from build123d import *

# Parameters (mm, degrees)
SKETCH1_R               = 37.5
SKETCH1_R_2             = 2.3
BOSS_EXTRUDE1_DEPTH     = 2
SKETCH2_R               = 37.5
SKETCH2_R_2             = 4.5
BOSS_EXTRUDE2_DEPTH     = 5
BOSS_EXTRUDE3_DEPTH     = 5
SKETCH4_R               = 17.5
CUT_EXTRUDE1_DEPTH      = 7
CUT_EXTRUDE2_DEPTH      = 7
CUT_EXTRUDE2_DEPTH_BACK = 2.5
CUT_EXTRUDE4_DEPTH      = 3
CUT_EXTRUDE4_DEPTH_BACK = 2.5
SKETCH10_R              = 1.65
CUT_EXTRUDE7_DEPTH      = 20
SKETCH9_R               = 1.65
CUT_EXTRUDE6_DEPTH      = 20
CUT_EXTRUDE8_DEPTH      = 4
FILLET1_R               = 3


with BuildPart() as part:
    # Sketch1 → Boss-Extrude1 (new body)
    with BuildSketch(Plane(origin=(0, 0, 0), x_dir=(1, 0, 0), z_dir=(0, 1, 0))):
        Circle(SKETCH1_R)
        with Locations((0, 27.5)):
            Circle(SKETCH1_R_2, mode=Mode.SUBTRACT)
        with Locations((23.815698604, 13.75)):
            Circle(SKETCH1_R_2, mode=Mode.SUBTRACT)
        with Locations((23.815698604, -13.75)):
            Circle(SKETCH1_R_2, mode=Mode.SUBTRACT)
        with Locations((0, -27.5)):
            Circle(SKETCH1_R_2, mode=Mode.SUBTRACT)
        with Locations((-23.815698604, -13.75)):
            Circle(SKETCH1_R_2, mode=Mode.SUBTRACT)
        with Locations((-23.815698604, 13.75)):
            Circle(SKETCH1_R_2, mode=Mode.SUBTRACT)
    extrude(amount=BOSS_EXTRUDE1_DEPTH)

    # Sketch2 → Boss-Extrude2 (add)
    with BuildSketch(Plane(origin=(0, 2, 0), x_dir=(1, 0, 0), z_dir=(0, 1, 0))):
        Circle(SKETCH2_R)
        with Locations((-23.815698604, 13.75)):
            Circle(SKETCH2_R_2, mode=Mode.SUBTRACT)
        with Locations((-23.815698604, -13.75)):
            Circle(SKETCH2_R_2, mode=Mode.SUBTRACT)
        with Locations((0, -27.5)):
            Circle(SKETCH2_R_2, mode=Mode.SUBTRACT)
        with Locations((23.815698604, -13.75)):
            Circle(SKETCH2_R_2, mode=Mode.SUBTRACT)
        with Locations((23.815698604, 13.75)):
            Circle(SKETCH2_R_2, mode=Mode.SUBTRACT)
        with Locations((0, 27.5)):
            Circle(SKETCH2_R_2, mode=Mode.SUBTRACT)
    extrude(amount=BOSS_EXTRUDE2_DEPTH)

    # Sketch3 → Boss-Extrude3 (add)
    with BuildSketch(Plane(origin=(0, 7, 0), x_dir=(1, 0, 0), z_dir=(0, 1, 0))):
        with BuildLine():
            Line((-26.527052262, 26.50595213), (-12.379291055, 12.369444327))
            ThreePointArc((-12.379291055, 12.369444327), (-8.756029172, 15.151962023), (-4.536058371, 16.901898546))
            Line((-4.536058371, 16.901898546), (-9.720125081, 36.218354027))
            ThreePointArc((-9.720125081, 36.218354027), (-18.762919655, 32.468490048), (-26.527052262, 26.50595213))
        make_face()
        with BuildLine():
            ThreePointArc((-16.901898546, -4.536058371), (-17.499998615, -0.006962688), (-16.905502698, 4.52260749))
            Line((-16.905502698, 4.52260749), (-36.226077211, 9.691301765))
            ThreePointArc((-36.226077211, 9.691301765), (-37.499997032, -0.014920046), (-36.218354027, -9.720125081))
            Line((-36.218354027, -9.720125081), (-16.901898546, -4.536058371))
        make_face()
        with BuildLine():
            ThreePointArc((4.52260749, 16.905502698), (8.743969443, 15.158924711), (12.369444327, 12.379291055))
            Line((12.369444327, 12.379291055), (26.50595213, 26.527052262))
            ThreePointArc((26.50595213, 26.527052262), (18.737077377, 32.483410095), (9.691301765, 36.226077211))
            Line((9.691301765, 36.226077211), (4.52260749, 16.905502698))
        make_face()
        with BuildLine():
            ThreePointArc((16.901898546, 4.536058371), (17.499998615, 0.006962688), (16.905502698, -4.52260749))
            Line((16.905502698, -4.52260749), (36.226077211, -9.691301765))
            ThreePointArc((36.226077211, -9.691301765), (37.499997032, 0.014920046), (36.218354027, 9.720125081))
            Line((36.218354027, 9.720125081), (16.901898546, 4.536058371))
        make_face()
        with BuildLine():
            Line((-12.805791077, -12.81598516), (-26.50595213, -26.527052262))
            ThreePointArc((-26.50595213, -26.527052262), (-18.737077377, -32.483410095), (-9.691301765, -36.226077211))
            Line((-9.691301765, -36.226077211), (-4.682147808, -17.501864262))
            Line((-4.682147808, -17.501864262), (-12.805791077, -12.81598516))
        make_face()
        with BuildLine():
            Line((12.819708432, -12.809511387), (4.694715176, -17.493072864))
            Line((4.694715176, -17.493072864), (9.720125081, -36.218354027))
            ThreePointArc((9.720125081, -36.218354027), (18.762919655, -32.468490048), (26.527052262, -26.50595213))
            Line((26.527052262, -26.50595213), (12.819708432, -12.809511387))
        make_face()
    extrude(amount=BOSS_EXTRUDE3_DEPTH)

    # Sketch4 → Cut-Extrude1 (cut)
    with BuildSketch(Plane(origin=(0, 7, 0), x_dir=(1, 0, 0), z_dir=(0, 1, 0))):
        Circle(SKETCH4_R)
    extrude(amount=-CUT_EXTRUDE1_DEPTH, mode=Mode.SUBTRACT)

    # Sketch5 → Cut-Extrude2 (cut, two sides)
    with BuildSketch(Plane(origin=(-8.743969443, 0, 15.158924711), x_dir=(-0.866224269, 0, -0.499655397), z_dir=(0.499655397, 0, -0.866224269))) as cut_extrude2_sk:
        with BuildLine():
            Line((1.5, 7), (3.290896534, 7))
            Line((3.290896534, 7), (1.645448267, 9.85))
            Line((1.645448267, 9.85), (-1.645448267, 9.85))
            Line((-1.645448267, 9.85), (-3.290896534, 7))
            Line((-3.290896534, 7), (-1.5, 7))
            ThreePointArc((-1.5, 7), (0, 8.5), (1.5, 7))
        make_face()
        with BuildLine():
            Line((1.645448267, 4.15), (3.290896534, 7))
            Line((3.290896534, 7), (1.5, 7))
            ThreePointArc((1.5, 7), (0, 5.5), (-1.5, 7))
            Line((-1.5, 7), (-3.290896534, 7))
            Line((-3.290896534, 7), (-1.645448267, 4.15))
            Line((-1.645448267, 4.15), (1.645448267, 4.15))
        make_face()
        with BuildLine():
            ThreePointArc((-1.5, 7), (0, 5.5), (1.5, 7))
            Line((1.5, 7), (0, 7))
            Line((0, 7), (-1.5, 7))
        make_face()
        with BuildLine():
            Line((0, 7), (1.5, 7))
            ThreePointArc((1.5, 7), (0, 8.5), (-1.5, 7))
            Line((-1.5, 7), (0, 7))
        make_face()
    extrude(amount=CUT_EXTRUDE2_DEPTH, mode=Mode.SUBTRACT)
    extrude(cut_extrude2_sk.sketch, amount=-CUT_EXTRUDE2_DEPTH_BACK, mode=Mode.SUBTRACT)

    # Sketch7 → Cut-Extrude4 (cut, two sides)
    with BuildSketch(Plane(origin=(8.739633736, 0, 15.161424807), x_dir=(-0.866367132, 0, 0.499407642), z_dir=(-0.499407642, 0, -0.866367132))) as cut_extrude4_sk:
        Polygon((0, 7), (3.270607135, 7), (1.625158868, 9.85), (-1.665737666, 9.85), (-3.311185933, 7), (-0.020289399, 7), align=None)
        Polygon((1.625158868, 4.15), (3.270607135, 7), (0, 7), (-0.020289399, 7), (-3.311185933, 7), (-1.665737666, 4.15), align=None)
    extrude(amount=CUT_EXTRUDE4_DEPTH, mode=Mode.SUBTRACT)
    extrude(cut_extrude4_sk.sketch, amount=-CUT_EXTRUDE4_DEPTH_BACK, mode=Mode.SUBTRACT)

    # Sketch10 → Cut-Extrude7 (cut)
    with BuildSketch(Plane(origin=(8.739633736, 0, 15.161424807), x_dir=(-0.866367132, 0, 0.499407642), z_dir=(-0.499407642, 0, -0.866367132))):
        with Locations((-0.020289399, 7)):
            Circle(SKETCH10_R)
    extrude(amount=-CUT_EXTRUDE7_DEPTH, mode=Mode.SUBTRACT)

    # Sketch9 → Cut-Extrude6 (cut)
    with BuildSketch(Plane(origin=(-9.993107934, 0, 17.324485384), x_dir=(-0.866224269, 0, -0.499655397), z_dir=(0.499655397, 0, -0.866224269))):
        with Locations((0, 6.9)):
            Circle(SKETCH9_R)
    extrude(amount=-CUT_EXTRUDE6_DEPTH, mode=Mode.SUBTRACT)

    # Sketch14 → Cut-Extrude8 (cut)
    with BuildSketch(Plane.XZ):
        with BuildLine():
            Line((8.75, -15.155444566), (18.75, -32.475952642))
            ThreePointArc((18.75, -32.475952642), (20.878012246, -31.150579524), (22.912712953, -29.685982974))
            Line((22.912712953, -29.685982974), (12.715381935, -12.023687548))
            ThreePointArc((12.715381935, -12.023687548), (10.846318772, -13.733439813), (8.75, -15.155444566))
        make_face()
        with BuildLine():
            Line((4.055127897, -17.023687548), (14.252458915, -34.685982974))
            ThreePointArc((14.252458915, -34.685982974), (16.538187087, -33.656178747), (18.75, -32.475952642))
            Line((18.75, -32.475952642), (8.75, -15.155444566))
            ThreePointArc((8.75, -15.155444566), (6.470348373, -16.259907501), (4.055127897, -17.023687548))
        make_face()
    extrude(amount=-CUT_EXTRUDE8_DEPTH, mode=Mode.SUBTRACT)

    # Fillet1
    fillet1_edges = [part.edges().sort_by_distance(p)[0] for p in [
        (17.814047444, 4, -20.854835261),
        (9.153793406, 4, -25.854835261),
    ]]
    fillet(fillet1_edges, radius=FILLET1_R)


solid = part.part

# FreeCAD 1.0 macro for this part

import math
import FreeCAD as App
import Part
import Sketcher
from FreeCAD import Vector
Q = App.Units.Quantity


def edges_at(feature, points):
    """Names of the edges that pass closest to the given points."""
    edges = feature.Shape.Edges
    near = lambda p: min(range(len(edges)), key=lambda i: edges[i].distToShape(Part.Vertex(*p))[0])
    return sorted({f"Edge{near(p) + 1}" for p in points})


def add_polygon(sketch, points):
    """Adds a closed chain of lines whose ends are joined by coincident constraints."""
    first, n = sketch.GeometryCount, len(points)
    for a, b in zip(points, points[1:] + points[:1]):
        sketch.addGeometry(Part.LineSegment(App.Vector(*a, 0), App.Vector(*b, 0)), False)
    for i in range(n):
        sketch.addConstraint(Sketcher.Constraint("Coincident", first + i, 2, first + (i + 1) % n, 1))

doc = App.newDocument("Part")
body = doc.addObject("PartDesign::Body", "Body")

sketch1 = body.newObject("Sketcher::SketchObject", "Sketch")
sketch1.AttachmentSupport = (doc.getObject("XZ_Plane"), [""])
sketch1.MapMode = "FlatFace"
sketch1.addGeometry(Part.Circle(Vector(0, 0, 0), Vector(0, 0, 1), 37.5), False)
sketch1.addGeometry(Part.Circle(Vector(0, 27.5, 0), Vector(0, 0, 1), 2.3), False)
sketch1.addGeometry(Part.Circle(Vector(-23.815699, 13.75, 0), Vector(0, 0, 1), 2.3), False)
sketch1.addGeometry(Part.Circle(Vector(23.815699, 13.75, 0), Vector(0, 0, 1), 2.3), False)
sketch1.addGeometry(Part.Circle(Vector(-23.815699, -13.75, 0), Vector(0, 0, 1), 2.3), False)
sketch1.addGeometry(Part.Circle(Vector(0, -27.5, 0), Vector(0, 0, 1), 2.3), False)
sketch1.addGeometry(Part.Circle(Vector(23.815699, -13.75, 0), Vector(0, 0, 1), 2.3), False)
sketch1.addConstraint(Sketcher.Constraint("Coincident", 0, 3, -1, 1))
sketch1.addConstraint(Sketcher.Constraint("Equal", 1, 2))
sketch1.addConstraint(Sketcher.Constraint("Equal", 2, 3))
sketch1.addConstraint(Sketcher.Constraint("Equal", 3, 4))
sketch1.addConstraint(Sketcher.Constraint("Equal", 4, 5))
sketch1.addConstraint(Sketcher.Constraint("Equal", 5, 6))
sketch1.addConstraint(Sketcher.Constraint("Symmetric", 3, 3, 4, 3, -1, 1))
sketch1.addConstraint(Sketcher.Constraint("Symmetric", 1, 3, 5, 3, -1, 1))
sketch1.addConstraint(Sketcher.Constraint("Symmetric", 2, 3, 6, 3, -1, 1))
sketch1.addConstraint(Sketcher.Constraint("Symmetric", 2, 3, 3, 3, -2))
sketch1.addConstraint(Sketcher.Constraint("PointOnObject", 1, 3, -2))
sketch1.addConstraint(Sketcher.Constraint("Diameter", 0, 75.0))
sketch1.addConstraint(Sketcher.Constraint("Diameter", 1, 4.6))
sketch1.addConstraint(Sketcher.Constraint("DistanceY", 5, 3, 1, 3, 55.0))
sketch1.addConstraint(Sketcher.Constraint("DistanceY", 4, 3, 2, 3, 27.5))
sketch1.addConstraint(Sketcher.Constraint("DistanceX", 2, 3, -1, 1, 23.815699))
pad1 = body.newObject("PartDesign::Pad", "Pad")
pad1.Profile = sketch1
pad1.Length = 2
pad1.Reversed = True

sketch2 = body.newObject("Sketcher::SketchObject", "Sketch001")
sketch2.AttachmentSupport = (doc.getObject("XZ_Plane"), [""])
sketch2.MapMode = "FlatFace"
sketch2.AttachmentOffset = App.Placement(Vector(0, 0, -2), App.Rotation())
sketch2.addGeometry(Part.Circle(Vector(0, 0, 0), Vector(0, 0, 1), 37.5), False)
sketch2.addGeometry(Part.Circle(Vector(-23.815699, 13.75, 0), Vector(0, 0, 1), 4.5), False)
sketch2.addGeometry(Part.Circle(Vector(0, 27.5, 0), Vector(0, 0, 1), 4.5), False)
sketch2.addGeometry(Part.Circle(Vector(23.815699, 13.75, 0), Vector(0, 0, 1), 4.5), False)
sketch2.addGeometry(Part.Circle(Vector(-23.815699, -13.75, 0), Vector(0, 0, 1), 4.5), False)
sketch2.addGeometry(Part.Circle(Vector(23.815699, -13.75, 0), Vector(0, 0, 1), 4.5), False)
sketch2.addGeometry(Part.Circle(Vector(0, -27.5, 0), Vector(0, 0, 1), 4.5), False)
sketch2.addConstraint(Sketcher.Constraint("Coincident", 0, 3, -1, 1))
sketch2.addConstraint(Sketcher.Constraint("Equal", 1, 2))
sketch2.addConstraint(Sketcher.Constraint("Equal", 2, 3))
sketch2.addConstraint(Sketcher.Constraint("Equal", 3, 4))
sketch2.addConstraint(Sketcher.Constraint("Equal", 4, 5))
sketch2.addConstraint(Sketcher.Constraint("Equal", 5, 6))
sketch2.addConstraint(Sketcher.Constraint("Symmetric", 3, 3, 4, 3, -1, 1))
sketch2.addConstraint(Sketcher.Constraint("Symmetric", 1, 3, 5, 3, -1, 1))
sketch2.addConstraint(Sketcher.Constraint("Symmetric", 2, 3, 6, 3, -1, 1))
sketch2.addConstraint(Sketcher.Constraint("Symmetric", 1, 3, 3, 3, -2))
sketch2.addConstraint(Sketcher.Constraint("PointOnObject", 2, 3, -2))
sketch2.addConstraint(Sketcher.Constraint("Diameter", 0, 75.0))
sketch2.addConstraint(Sketcher.Constraint("Diameter", 1, 9.0))
sketch2.addConstraint(Sketcher.Constraint("DistanceY", -1, 1, 2, 3, 27.5))
sketch2.addConstraint(Sketcher.Constraint("DistanceY", 4, 3, 1, 3, 27.5))
sketch2.addConstraint(Sketcher.Constraint("DistanceX", 1, 3, -1, 1, 23.815699))
pad2 = body.newObject("PartDesign::Pad", "Pad001")
pad2.Profile = sketch2
pad2.Length = 5
pad2.Reversed = True

sketch3 = body.newObject("Sketcher::SketchObject", "Sketch002")
sketch3.AttachmentSupport = (doc.getObject("XZ_Plane"), [""])
sketch3.MapMode = "FlatFace"
sketch3.AttachmentOffset = App.Placement(Vector(0, 0, -7), App.Rotation())
sketch3.addGeometry(Part.LineSegment(Vector(-26.527052, -26.505952, 0), Vector(-12.379291, -12.369444, 0)), False)
sketch3.addGeometry(Part.ArcOfCircle(Part.Circle(Vector(0, 0, 0), Vector(0, 0, 1), 17.5), math.radians(-135.022796), math.radians(-105.022796)), False)
sketch3.addGeometry(Part.LineSegment(Vector(-4.536058, -16.901899, 0), Vector(-9.720125, -36.218354, 0)), False)
sketch3.addGeometry(Part.ArcOfCircle(Part.Circle(Vector(0, 0, 0), Vector(0, 0, 1), 37.5), math.radians(-135.022796), math.radians(-105.022796)), False)
sketch3.addGeometry(Part.ArcOfCircle(Part.Circle(Vector(0, 0, 0), Vector(0, 0, 1), 17.5), math.radians(164.977204), math.radians(194.977204)), False)
sketch3.addGeometry(Part.LineSegment(Vector(-16.905503, -4.522607, 0), Vector(-36.226077, -9.691302, 0)), False)
sketch3.addGeometry(Part.ArcOfCircle(Part.Circle(Vector(0, 0, 0), Vector(0, 0, 1), 37.5), math.radians(164.977204), math.radians(194.977204)), False)
sketch3.addGeometry(Part.LineSegment(Vector(-36.218354, 9.720125, 0), Vector(-16.901899, 4.536058, 0)), False)
sketch3.addGeometry(Part.ArcOfCircle(Part.Circle(Vector(0, 0, 0), Vector(0, 0, 1), 17.5), math.radians(-75.022796), math.radians(-45.022796)), False)
sketch3.addGeometry(Part.LineSegment(Vector(12.369444, -12.379291, 0), Vector(26.505952, -26.527052, 0)), False)
sketch3.addGeometry(Part.ArcOfCircle(Part.Circle(Vector(0, 0, 0), Vector(0, 0, 1), 37.5), math.radians(-75.022796), math.radians(-45.022796)), False)
sketch3.addGeometry(Part.LineSegment(Vector(9.691302, -36.226077, 0), Vector(4.522607, -16.905503, 0)), False)
sketch3.addGeometry(Part.ArcOfCircle(Part.Circle(Vector(0, 0, 0), Vector(0, 0, 1), 17.5), math.radians(-15.022796), math.radians(14.977204)), False)
sketch3.addGeometry(Part.LineSegment(Vector(16.905503, 4.522607, 0), Vector(36.226077, 9.691302, 0)), False)
sketch3.addGeometry(Part.ArcOfCircle(Part.Circle(Vector(0, 0, 0), Vector(0, 0, 1), 37.5), math.radians(-15.022796), math.radians(14.977204)), False)
sketch3.addGeometry(Part.LineSegment(Vector(36.218354, -9.720125, 0), Vector(16.901899, -4.536058, 0)), False)
sketch3.addGeometry(Part.LineSegment(Vector(-12.805791, 12.815985, 0), Vector(-26.505952, 26.527052, 0)), False)
sketch3.addGeometry(Part.ArcOfCircle(Part.Circle(Vector(0, 0, 0), Vector(0, 0, 1), 37.5), math.radians(104.977204), math.radians(134.977204)), False)
sketch3.addGeometry(Part.LineSegment(Vector(-9.691302, 36.226077, 0), Vector(-4.682148, 17.501864, 0)), False)
sketch3.addGeometry(Part.LineSegment(Vector(-4.682148, 17.501864, 0), Vector(-12.805791, 12.815985, 0)), False)
sketch3.addGeometry(Part.LineSegment(Vector(12.819708, 12.809511, 0), Vector(4.694715, 17.493073, 0)), False)
sketch3.addGeometry(Part.LineSegment(Vector(4.694715, 17.493073, 0), Vector(9.720125, 36.218354, 0)), False)
sketch3.addGeometry(Part.ArcOfCircle(Part.Circle(Vector(0, 0, 0), Vector(0, 0, 1), 37.5), math.radians(44.977204), math.radians(74.977204)), False)
sketch3.addGeometry(Part.LineSegment(Vector(26.527052, 26.505952, 0), Vector(12.819708, 12.809511, 0)), False)
sketch3.addConstraint(Sketcher.Constraint("Coincident", 0, 2, 1, 1))
sketch3.addConstraint(Sketcher.Constraint("Coincident", 1, 2, 2, 1))
sketch3.addConstraint(Sketcher.Constraint("Coincident", 2, 2, 3, 2))
sketch3.addConstraint(Sketcher.Constraint("Coincident", 3, 1, 0, 1))
sketch3.addConstraint(Sketcher.Constraint("Coincident", 4, 2, 5, 1))
sketch3.addConstraint(Sketcher.Constraint("Coincident", 5, 2, 6, 2))
sketch3.addConstraint(Sketcher.Constraint("Coincident", 6, 1, 7, 1))
sketch3.addConstraint(Sketcher.Constraint("Coincident", 7, 2, 4, 1))
sketch3.addConstraint(Sketcher.Constraint("Coincident", 8, 2, 9, 1))
sketch3.addConstraint(Sketcher.Constraint("Coincident", 9, 2, 10, 2))
sketch3.addConstraint(Sketcher.Constraint("Coincident", 10, 1, 11, 1))
sketch3.addConstraint(Sketcher.Constraint("Coincident", 11, 2, 8, 1))
sketch3.addConstraint(Sketcher.Constraint("Coincident", 12, 2, 13, 1))
sketch3.addConstraint(Sketcher.Constraint("Coincident", 13, 2, 14, 2))
sketch3.addConstraint(Sketcher.Constraint("Coincident", 14, 1, 15, 1))
sketch3.addConstraint(Sketcher.Constraint("Coincident", 15, 2, 12, 1))
sketch3.addConstraint(Sketcher.Constraint("Coincident", 16, 2, 17, 2))
sketch3.addConstraint(Sketcher.Constraint("Coincident", 17, 1, 18, 1))
sketch3.addConstraint(Sketcher.Constraint("Coincident", 18, 2, 19, 1))
sketch3.addConstraint(Sketcher.Constraint("Coincident", 19, 2, 16, 1))
sketch3.addConstraint(Sketcher.Constraint("Coincident", 20, 2, 21, 1))
sketch3.addConstraint(Sketcher.Constraint("Coincident", 21, 2, 22, 2))
sketch3.addConstraint(Sketcher.Constraint("Coincident", 22, 1, 23, 1))
sketch3.addConstraint(Sketcher.Constraint("Coincident", 23, 2, 20, 1))
sketch3.addConstraint(Sketcher.Constraint("Coincident", 1, 3, -1, 1))
sketch3.addConstraint(Sketcher.Constraint("Coincident", 3, 3, -1, 1))
sketch3.addConstraint(Sketcher.Constraint("Coincident", 4, 3, -1, 1))
sketch3.addConstraint(Sketcher.Constraint("Coincident", 6, 3, -1, 1))
sketch3.addConstraint(Sketcher.Constraint("Coincident", 8, 3, -1, 1))
sketch3.addConstraint(Sketcher.Constraint("Coincident", 10, 3, -1, 1))
sketch3.addConstraint(Sketcher.Constraint("Coincident", 12, 3, -1, 1))
sketch3.addConstraint(Sketcher.Constraint("Coincident", 14, 3, -1, 1))
sketch3.addConstraint(Sketcher.Constraint("Coincident", 17, 3, -1, 1))
sketch3.addConstraint(Sketcher.Constraint("Coincident", 22, 3, -1, 1))
sketch3.addConstraint(Sketcher.Constraint("Equal", 1, 4))
sketch3.addConstraint(Sketcher.Constraint("Equal", 3, 6))
sketch3.addConstraint(Sketcher.Constraint("Equal", 4, 8))
sketch3.addConstraint(Sketcher.Constraint("Equal", 6, 10))
sketch3.addConstraint(Sketcher.Constraint("Equal", 8, 12))
sketch3.addConstraint(Sketcher.Constraint("Equal", 10, 14))
sketch3.addConstraint(Sketcher.Constraint("Equal", 14, 17))
sketch3.addConstraint(Sketcher.Constraint("Equal", 17, 22))
sketch3.addConstraint(Sketcher.Constraint("Perpendicular", 2, 7))
sketch3.addConstraint(Sketcher.Constraint("Perpendicular", 0, 9))
sketch3.addConstraint(Sketcher.Constraint("Perpendicular", 5, 11))
sketch3.addConstraint(Sketcher.Constraint("Perpendicular", 11, 13))
sketch3.addConstraint(Sketcher.Constraint("Parallel", 7, 15))
sketch3.addConstraint(Sketcher.Constraint("Parallel", 9, 16))
sketch3.addConstraint(Sketcher.Constraint("Perpendicular", 13, 18))
sketch3.addConstraint(Sketcher.Constraint("Perpendicular", 15, 21))
sketch3.addConstraint(Sketcher.Constraint("Perpendicular", 16, 23))
sketch3.addConstraint(Sketcher.Constraint("Equal", 16, 18))
sketch3.addConstraint(Sketcher.Constraint("Radius", 1, 17.5))
sketch3.addConstraint(Sketcher.Constraint("Radius", 3, 37.5))
sketch3.addConstraint(Sketcher.Constraint("DistanceY", 1, 2, -1, 1, 16.901899))
sketch3.addConstraint(Sketcher.Constraint("DistanceY", 5, 2, -1, 1, 9.691302))
sketch3.addConstraint(Sketcher.Constraint("DistanceX", 7, 2, -1, 1, 16.901899))
sketch3.addConstraint(Sketcher.Constraint("DistanceX", -1, 1, 10, 1, 9.691302))
sketch3.addConstraint(Sketcher.Constraint("DistanceY", -1, 1, 13, 2, 9.691302))
sketch3.addConstraint(Sketcher.Constraint("DistanceX", -1, 1, 15, 2, 16.901899))
sketch3.addConstraint(Sketcher.Constraint("DistanceX", 17, 1, -1, 1, 9.691302))
sketch3.addConstraint(Sketcher.Constraint("DistanceY", 2, 2, 3, 1, 9.712402))
sketch3.addConstraint(Sketcher.Constraint("DistanceX", 9, 2, 14, 1, 9.712402))
sketch3.addConstraint(Sketcher.Constraint("DistanceX", 6, 1, 16, 2, 9.712402))
sketch3.addConstraint(Sketcher.Constraint("DistanceY", 22, 1, 21, 2, 9.712402))
sketch3.addConstraint(Sketcher.Constraint("DistanceX", 18, 2, 22, 1, 31.2092))
sketch3.addConstraint(Sketcher.Constraint("Distance", 19, 9.378222))
sketch3.addConstraint(Sketcher.Constraint("DistanceX", 0, 2, -1, 1, 12.379291))
sketch3.addConstraint(Sketcher.Constraint("DistanceX", 19, 2, -1, 1, 12.805791))
sketch3.addConstraint(Sketcher.Constraint("DistanceX", -1, 1, 23, 2, 12.819708))
sketch3.addConstraint(Sketcher.Constraint("DistanceY", -1, 1, 23, 2, 12.809511))
sketch3.addConstraint(Sketcher.Constraint("DistanceY", 20, 2, 18, 2, 0.008791))
pad3 = body.newObject("PartDesign::Pad", "Pad002")
pad3.Profile = sketch3
pad3.Length = 5
pad3.Reversed = True

sketch4 = body.newObject("Sketcher::SketchObject", "Sketch003")
sketch4.AttachmentSupport = (doc.getObject("XZ_Plane"), [""])
sketch4.MapMode = "FlatFace"
sketch4.AttachmentOffset = App.Placement(Vector(0, 0, -7), App.Rotation())
sketch4.addGeometry(Part.Circle(Vector(0, 0, 0), Vector(0, 0, 1), 17.5), False)
sketch4.addConstraint(Sketcher.Constraint("Coincident", 0, 3, -1, 1))
sketch4.addConstraint(Sketcher.Constraint("Diameter", 0, 35.0))
pocket1 = body.newObject("PartDesign::Pocket", "Pocket")
pocket1.Profile = sketch4
pocket1.Length = 7
pocket1.Reversed = True

sketch5 = body.newObject("Sketcher::SketchObject", "Sketch004")
sketch5.Placement = App.Placement(Vector(-8.743969, 0, 15.158925), App.Rotation(Vector(-0.866224269, 0, -0.499655397), Vector(0, 1, 0), Vector(0.499655397, 0, -0.866224269), "ZXY"))
add_polygon(sketch5, [(3.290897, 7), (1.645448, 9.85), (-1.645448, 9.85), (-3.290897, 7), (-1.645448, 4.15), (1.645448, 4.15)])
sketch5.addConstraint(Sketcher.Constraint("Horizontal", 1))
sketch5.addConstraint(Sketcher.Constraint("Horizontal", 4))
sketch5.addConstraint(Sketcher.Constraint("Symmetric", 2, 2, 5, 2, -2))
sketch5.addConstraint(Sketcher.Constraint("Parallel", 0, 3))
sketch5.addConstraint(Sketcher.Constraint("Parallel", 2, 5))
sketch5.addConstraint(Sketcher.Constraint("Vertical", 1, 2, 3, 2))
sketch5.addConstraint(Sketcher.Constraint("Vertical", 0, 2, 4, 2))
sketch5.addConstraint(Sketcher.Constraint("Angle", 0, Q("120 deg")))
sketch5.addConstraint(Sketcher.Constraint("DistanceY", -1, 1, 2, 2, 7.0))
sketch5.addConstraint(Sketcher.Constraint("DistanceY", 3, 2, 1, 2, 5.7))
sketch5.addConstraint(Sketcher.Constraint("DistanceX", 1, 2, 1, 1, 3.290897))
pocket2 = body.newObject("PartDesign::Pocket", "Pocket001")
pocket2.Profile = sketch5
pocket2.Type = "TwoLengths"
pocket2.Length = 7
pocket2.Length2 = 2.5
pocket2.Reversed = True

sketch6 = body.newObject("Sketcher::SketchObject", "Sketch005")
sketch6.Placement = App.Placement(Vector(8.739634, 0, 15.161425), App.Rotation(Vector(-0.866367132, 0, 0.499407642), Vector(0, 1, 0), Vector(-0.499407642, 0, -0.866367132), "ZXY"))
add_polygon(sketch6, [(3.270607, 7), (1.625159, 9.85), (-1.665738, 9.85), (-3.311186, 7), (-1.665738, 4.15), (1.625159, 4.15)])
sketch6.addConstraint(Sketcher.Constraint("Horizontal", 1))
sketch6.addConstraint(Sketcher.Constraint("Horizontal", 4))
sketch6.addConstraint(Sketcher.Constraint("Parallel", 0, 3))
sketch6.addConstraint(Sketcher.Constraint("Parallel", 2, 5))
sketch6.addConstraint(Sketcher.Constraint("Horizontal", 2, 2, 5, 2))
sketch6.addConstraint(Sketcher.Constraint("Vertical", 1, 2, 3, 2))
sketch6.addConstraint(Sketcher.Constraint("Vertical", 0, 2, 4, 2))
sketch6.addConstraint(Sketcher.Constraint("Angle", 0, Q("120 deg")))
sketch6.addConstraint(Sketcher.Constraint("DistanceY", -1, 1, 2, 2, 7.0))
sketch6.addConstraint(Sketcher.Constraint("DistanceY", 3, 2, 1, 2, 5.7))
sketch6.addConstraint(Sketcher.Constraint("DistanceX", 1, 2, 1, 1, 3.290897))
sketch6.addConstraint(Sketcher.Constraint("DistanceX", -1, 1, 0, 2, 1.625159))
pocket3 = body.newObject("PartDesign::Pocket", "Pocket002")
pocket3.Profile = sketch6
pocket3.Type = "TwoLengths"
pocket3.Length = 3
pocket3.Length2 = 2.5
pocket3.Reversed = True

sketch7 = body.newObject("Sketcher::SketchObject", "Sketch006")
sketch7.Placement = App.Placement(Vector(8.739634, 0, 15.161425), App.Rotation(Vector(-0.866367132, 0, 0.499407642), Vector(0, 1, 0), Vector(-0.499407642, 0, -0.866367132), "ZXY"))
sketch7.addGeometry(Part.Circle(Vector(-0.020289, 7, 0), Vector(0, 0, 1), 1.65), False)
sketch7.addConstraint(Sketcher.Constraint("Diameter", 0, 3.3))
sketch7.addConstraint(Sketcher.Constraint("DistanceY", -1, 1, 0, 3, 7.0))
sketch7.addConstraint(Sketcher.Constraint("DistanceX", 0, 3, -1, 1, 0.020289))
pocket4 = body.newObject("PartDesign::Pocket", "Pocket003")
pocket4.Profile = sketch7
pocket4.Length = 20

sketch8 = body.newObject("Sketcher::SketchObject", "Sketch007")
sketch8.Placement = App.Placement(Vector(-9.993108, 0, 17.324485), App.Rotation(Vector(-0.866224269, 0, -0.499655397), Vector(0, 1, 0), Vector(0.499655397, 0, -0.866224269), "ZXY"))
sketch8.addGeometry(Part.Circle(Vector(0, 6.9, 0), Vector(0, 0, 1), 1.65), False)
sketch8.addConstraint(Sketcher.Constraint("PointOnObject", 0, 3, -2))
sketch8.addConstraint(Sketcher.Constraint("Diameter", 0, 3.3))
sketch8.addConstraint(Sketcher.Constraint("DistanceY", -1, 1, 0, 3, 6.9))
pocket5 = body.newObject("PartDesign::Pocket", "Pocket004")
pocket5.Profile = sketch8
pocket5.Length = 20

sketch9 = body.newObject("Sketcher::SketchObject", "Sketch008")
sketch9.AttachmentSupport = (doc.getObject("XZ_Plane"), [""])
sketch9.MapMode = "FlatFace"
sketch9.addGeometry(Part.ArcOfCircle(Part.Circle(Vector(0, 0, 0), Vector(0, 0, 1), 37.5), math.radians(-60), math.radians(-52.337744)), False)
sketch9.addGeometry(Part.LineSegment(Vector(22.912713, -29.685983, 0), Vector(12.715382, -12.023688, 0)), False)
sketch9.addGeometry(Part.ArcOfCircle(Part.Circle(Vector(0, 0, 0), Vector(0, 0, 1), 17.5), math.radians(-60), math.radians(-43.39845)), False)
sketch9.addGeometry(Part.ArcOfCircle(Part.Circle(Vector(0, 0, 0), Vector(0, 0, 1), 17.5), math.radians(-76.60155), math.radians(-60)), False)
sketch9.addGeometry(Part.LineSegment(Vector(4.055128, -17.023688, 0), Vector(14.252459, -34.685983, 0)), False)
sketch9.addGeometry(Part.ArcOfCircle(Part.Circle(Vector(0, 0, 0), Vector(0, 0, 1), 37.5), math.radians(-67.662256), math.radians(-60)), False)
sketch9.addConstraint(Sketcher.Constraint("Coincident", 0, 2, 1, 1))
sketch9.addConstraint(Sketcher.Constraint("Coincident", 1, 2, 2, 2))
sketch9.addConstraint(Sketcher.Constraint("Tangent", 2, 1, 3, 2))
sketch9.addConstraint(Sketcher.Constraint("Coincident", 3, 1, 4, 1))
sketch9.addConstraint(Sketcher.Constraint("Coincident", 4, 2, 5, 1))
sketch9.addConstraint(Sketcher.Constraint("Tangent", 5, 2, 0, 1))
sketch9.addConstraint(Sketcher.Constraint("Coincident", 0, 3, -1, 1))
sketch9.addConstraint(Sketcher.Constraint("Coincident", 2, 3, -1, 1))
sketch9.addConstraint(Sketcher.Constraint("Equal", 2, 3))
sketch9.addConstraint(Sketcher.Constraint("Equal", 0, 5))
sketch9.addConstraint(Sketcher.Constraint("Parallel", 1, 4))
sketch9.addConstraint(Sketcher.Constraint("Equal", 1, 4))
sketch9.addConstraint(Sketcher.Constraint("Radius", 0, 37.5))
sketch9.addConstraint(Sketcher.Constraint("Radius", 2, 17.5))
sketch9.addConstraint(Sketcher.Constraint("Angle", 1, Q("120 deg")))
sketch9.addConstraint(Sketcher.Constraint("DistanceY", 3, 1, 1, 2, 5.0))
sketch9.addConstraint(Sketcher.Constraint("DistanceX", 2, 1, 5, 2, 10.0))
sketch9.addConstraint(Sketcher.Constraint("DistanceX", -1, 1, 2, 1, 8.75))
pocket6 = body.newObject("PartDesign::Pocket", "Pocket005")
pocket6.Profile = sketch9
pocket6.Length = 4
doc.recompute()

fillet = body.newObject("PartDesign::Fillet", "Fillet")
fillet.Base = (pocket6, edges_at(pocket6, [(17.814, 4, -20.855), (9.154, 4, -25.855)]))
fillet.Radius = 3

doc.recompute()
